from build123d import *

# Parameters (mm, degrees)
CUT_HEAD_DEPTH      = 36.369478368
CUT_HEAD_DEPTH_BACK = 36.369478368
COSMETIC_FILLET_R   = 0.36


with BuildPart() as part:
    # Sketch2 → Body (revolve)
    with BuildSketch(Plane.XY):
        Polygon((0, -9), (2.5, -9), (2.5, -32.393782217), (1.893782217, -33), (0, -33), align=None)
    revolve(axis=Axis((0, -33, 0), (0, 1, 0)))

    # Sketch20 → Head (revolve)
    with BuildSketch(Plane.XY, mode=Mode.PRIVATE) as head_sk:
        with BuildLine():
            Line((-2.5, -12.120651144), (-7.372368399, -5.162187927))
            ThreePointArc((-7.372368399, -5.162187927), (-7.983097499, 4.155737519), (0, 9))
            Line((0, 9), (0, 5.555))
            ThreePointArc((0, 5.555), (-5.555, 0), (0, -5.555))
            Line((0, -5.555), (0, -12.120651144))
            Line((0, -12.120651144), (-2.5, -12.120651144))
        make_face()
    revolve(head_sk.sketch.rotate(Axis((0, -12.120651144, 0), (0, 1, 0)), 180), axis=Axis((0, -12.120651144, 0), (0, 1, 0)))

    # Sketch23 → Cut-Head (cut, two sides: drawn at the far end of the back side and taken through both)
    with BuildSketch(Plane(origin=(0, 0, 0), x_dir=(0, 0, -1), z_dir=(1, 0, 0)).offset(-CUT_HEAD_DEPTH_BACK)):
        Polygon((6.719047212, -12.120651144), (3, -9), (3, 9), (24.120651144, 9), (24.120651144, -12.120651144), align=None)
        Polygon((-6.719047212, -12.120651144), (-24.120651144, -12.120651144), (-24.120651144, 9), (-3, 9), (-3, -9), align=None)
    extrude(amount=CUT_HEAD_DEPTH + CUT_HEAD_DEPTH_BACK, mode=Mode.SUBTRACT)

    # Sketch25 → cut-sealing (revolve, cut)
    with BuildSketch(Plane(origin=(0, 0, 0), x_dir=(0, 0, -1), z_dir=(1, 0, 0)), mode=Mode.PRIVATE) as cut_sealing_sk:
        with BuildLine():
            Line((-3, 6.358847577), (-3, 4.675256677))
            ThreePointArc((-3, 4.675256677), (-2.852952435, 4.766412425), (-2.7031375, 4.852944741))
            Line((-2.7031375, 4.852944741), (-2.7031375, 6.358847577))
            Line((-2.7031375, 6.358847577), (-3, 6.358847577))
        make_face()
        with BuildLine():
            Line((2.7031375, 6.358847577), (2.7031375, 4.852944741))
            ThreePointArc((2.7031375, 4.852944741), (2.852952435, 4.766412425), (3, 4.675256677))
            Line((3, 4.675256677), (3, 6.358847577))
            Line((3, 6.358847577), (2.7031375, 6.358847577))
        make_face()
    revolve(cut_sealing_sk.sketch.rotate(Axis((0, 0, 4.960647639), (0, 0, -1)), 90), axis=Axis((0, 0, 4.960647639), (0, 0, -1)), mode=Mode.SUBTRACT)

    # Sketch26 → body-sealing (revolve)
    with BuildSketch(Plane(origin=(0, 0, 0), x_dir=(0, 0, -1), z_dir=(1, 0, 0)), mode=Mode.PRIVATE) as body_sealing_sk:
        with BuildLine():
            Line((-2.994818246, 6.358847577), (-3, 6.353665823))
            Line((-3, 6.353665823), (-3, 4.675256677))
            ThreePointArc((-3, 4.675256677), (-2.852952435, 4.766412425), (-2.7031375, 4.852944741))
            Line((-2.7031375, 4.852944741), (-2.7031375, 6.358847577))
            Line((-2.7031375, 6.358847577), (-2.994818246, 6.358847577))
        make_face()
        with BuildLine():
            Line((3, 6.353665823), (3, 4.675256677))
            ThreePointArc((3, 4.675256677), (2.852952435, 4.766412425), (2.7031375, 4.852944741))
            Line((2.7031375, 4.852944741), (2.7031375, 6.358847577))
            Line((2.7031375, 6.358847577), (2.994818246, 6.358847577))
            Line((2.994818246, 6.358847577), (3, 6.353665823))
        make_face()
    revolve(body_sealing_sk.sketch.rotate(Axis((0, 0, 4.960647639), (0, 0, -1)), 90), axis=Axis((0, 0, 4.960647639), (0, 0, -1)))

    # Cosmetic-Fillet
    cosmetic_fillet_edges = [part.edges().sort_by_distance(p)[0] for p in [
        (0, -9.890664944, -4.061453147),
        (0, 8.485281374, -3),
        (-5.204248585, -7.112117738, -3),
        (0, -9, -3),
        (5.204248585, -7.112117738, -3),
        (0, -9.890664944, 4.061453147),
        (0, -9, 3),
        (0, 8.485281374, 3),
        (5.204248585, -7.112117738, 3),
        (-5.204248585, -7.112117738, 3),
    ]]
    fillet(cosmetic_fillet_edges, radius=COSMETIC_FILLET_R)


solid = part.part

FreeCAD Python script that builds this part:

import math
import FreeCAD as App
import Part
import Sketcher
Q = App.Units.Quantity


def edges_at(feature, points):
    """Names of the edges that pass closest to the given points."""
    edges = feature.Shape.Edges
    near = lambda p: min(range(len(edges)), key=lambda i: edges[i].distToShape(Part.Vertex(*p))[0])
    return sorted({f"Edge{near(p) + 1}" for p in points})

doc = App.newDocument("Part")
params = doc.addObject("Spreadsheet::Sheet", "Params")
for row, (alias, value) in enumerate([
    ("sketch1_height", "24 mm"),
    ("sketch1_width", "2.5 mm"),
    ("revolution_angle", "360 deg"),
    ("sketch2_radius", "9 mm"),
    ("sketch2_width", "2.5 mm"),
    ("revolution2_angle", "360 deg"),
    ("sketch3_width", "18 mm"),
    ("groove_angle", "360 deg"),
    ("revolution3_angle", "360 deg"),
    ("fillet_radius", "0.36 mm"),
], start=1):
    params.set(f"A{row}", alias)
    params.set(f"B{row}", "=" + value)
    params.setAlias(f"B{row}", alias)

body = doc.addObject("PartDesign::Body", "Body")

sketch1 = doc.addObject("Sketcher::SketchObject", "Sketch")
body.addObject(sketch1)
sketch1.AttachmentSupport = (doc.XY_Plane, [""])
sketch1.MapMode = "FlatFace"
sketch1.addGeometry([
    Part.LineSegment(App.Vector(2.5, -9, 0), App.Vector(0, -9, 0)),
    Part.LineSegment(App.Vector(0, -9, 0), App.Vector(0, -33, 0)),
    Part.LineSegment(App.Vector(0, -33, 0), App.Vector(1.9, -33, 0)),
    Part.LineSegment(App.Vector(1.9, -33, 0), App.Vector(2.5, -32.4, 0)),
    Part.LineSegment(App.Vector(2.5, -32.4, 0), App.Vector(2.5, -9, 0)),
], False)
sketch1.addConstraint([
    Sketcher.Constraint("Coincident", 0, 2, 1, 1),
    Sketcher.Constraint("Coincident", 1, 2, 2, 1),
    Sketcher.Constraint("Coincident", 2, 2, 3, 1),
    Sketcher.Constraint("Coincident", 3, 2, 4, 1),
    Sketcher.Constraint("Coincident", 4, 2, 0, 1),
    Sketcher.Constraint("Horizontal", 0),
    Sketcher.Constraint("Vertical", 1),
    Sketcher.Constraint("Horizontal", 2),
    Sketcher.Constraint("Vertical", 4),
    Sketcher.Constraint("PointOnObject", 0, 2, -2),
    Sketcher.Constraint("DistanceY", 1, 2, 1, 1, 24.0),
    Sketcher.Constraint("Angle", 3, Q("45 deg")),
    Sketcher.Constraint("DistanceX", 0, 2, 0, 1, 2.5),
    Sketcher.Constraint("DistanceY", 0, 2, -1, 1, 9.0),
    Sketcher.Constraint("Distance", 3, 0.857321),
])
sketch1.setExpression("Constraints[10]", "Params.sketch1_height")
sketch1.setExpression("Constraints[12]", "Params.sketch1_width")
revolution = doc.addObject("PartDesign::Revolution", "Revolution")
body.addObject(revolution)
revolution.Profile = sketch1
revolution.ReferenceAxis = (sketch1, ["V_Axis"])
revolution.setExpression("Angle", "Params.revolution_angle")

sketch2 = doc.addObject("Sketcher::SketchObject", "Sketch001")
body.addObject(sketch2)
sketch2.AttachmentSupport = (doc.XY_Plane, [""])
sketch2.MapMode = "FlatFace"
sketch2.addGeometry([
    Part.LineSegment(App.Vector(-7.4, -5.2, 0), App.Vector(-2.5, -12.1, 0)),
    Part.LineSegment(App.Vector(-2.5, -12.1, 0), App.Vector(0, -12.1, 0)),
    Part.LineSegment(App.Vector(0, -12.1, 0), App.Vector(0, -5.6, 0)),
    Part.ArcOfCircle(Part.Circle(App.Vector(0, 0, 0), App.Vector(0, 0, 1), 5.6), math.radians(90), math.radians(270)),
    Part.LineSegment(App.Vector(0, 5.6, 0), App.Vector(0, 9, 0)),
    Part.ArcOfCircle(Part.Circle(App.Vector(0, 0, 0), App.Vector(0, 0, 1), 9), math.radians(90), math.radians(215)),
], False)
sketch2.addConstraint([
    Sketcher.Constraint("Coincident", 0, 2, 1, 1),
    Sketcher.Constraint("Coincident", 1, 2, 2, 1),
    Sketcher.Constraint("Coincident", 2, 2, 3, 2),
    Sketcher.Constraint("Coincident", 3, 1, 4, 1),
    Sketcher.Constraint("Coincident", 4, 2, 5, 1),
    Sketcher.Constraint("Tangent", 5, 2, 0, 1),
    Sketcher.Constraint("Horizontal", 1),
    Sketcher.Constraint("Vertical", 2),
    Sketcher.Constraint("Vertical", 4),
    Sketcher.Constraint("Coincident", 3, 3, -1, 1),
    Sketcher.Constraint("Coincident", 5, 3, -1, 1),
    Sketcher.Constraint("PointOnObject", 1, 2, -2),
    Sketcher.Constraint("PointOnObject", 3, 1, -2),
    Sketcher.Constraint("Radius", 5, 9.0),
    Sketcher.Constraint("Angle", 0, Q("-55 deg")),
    Sketcher.Constraint("DistanceX", 1, 1, 1, 2, 2.5),
    Sketcher.Constraint("Radius", 3, 5.555),
])
sketch2.setExpression("Constraints[13]", "Params.sketch2_radius")
sketch2.setExpression("Constraints[15]", "Params.sketch2_width")
revolution2 = doc.addObject("PartDesign::Revolution", "Revolution001")
body.addObject(revolution2)
revolution2.Profile = sketch2
revolution2.ReferenceAxis = (sketch2, ["V_Axis"])
revolution2.setExpression("Angle", "Params.revolution2_angle")

sketch3 = doc.addObject("Sketcher::SketchObject", "Sketch002")
body.addObject(sketch3)
sketch3.AttachmentSupport = (doc.YZ_Plane, [""])
sketch3.MapMode = "FlatFace"
sketch3.addGeometry([
    Part.LineSegment(App.Vector(-9, -3, 0), App.Vector(-12.1, -6.7, 0)),
    Part.LineSegment(App.Vector(-12.1, -6.7, 0), App.Vector(-12.1, -24.1, 0)),
    Part.LineSegment(App.Vector(-12.1, -24.1, 0), App.Vector(9, -24.1, 0)),
    Part.LineSegment(App.Vector(9, -24.1, 0), App.Vector(9, -3, 0)),
    Part.LineSegment(App.Vector(9, -3, 0), App.Vector(-9, -3, 0)),
    Part.LineSegment(App.Vector(-12.1, 24.1, 0), App.Vector(-12.1, 6.7, 0)),
    Part.LineSegment(App.Vector(-12.1, 6.7, 0), App.Vector(-9, 3, 0)),
    Part.LineSegment(App.Vector(-9, 3, 0), App.Vector(9, 3, 0)),
    Part.LineSegment(App.Vector(9, 3, 0), App.Vector(9, 24.1, 0)),
    Part.LineSegment(App.Vector(9, 24.1, 0), App.Vector(-12.1, 24.1, 0)),
], False)
sketch3.addConstraint([
    Sketcher.Constraint("Coincident", 0, 2, 1, 1),
    Sketcher.Constraint("Coincident", 1, 2, 2, 1),
    Sketcher.Constraint("Coincident", 2, 2, 3, 1),
    Sketcher.Constraint("Coincident", 3, 2, 4, 1),
    Sketcher.Constraint("Coincident", 4, 2, 0, 1),
    Sketcher.Constraint("Coincident", 5, 2, 6, 1),
    Sketcher.Constraint("Coincident", 6, 2, 7, 1),
    Sketcher.Constraint("Coincident", 7, 2, 8, 1),
    Sketcher.Constraint("Coincident", 8, 2, 9, 1),
    Sketcher.Constraint("Coincident", 9, 2, 5, 1),
    Sketcher.Constraint("Vertical", 1),
    Sketcher.Constraint("Horizontal", 2),
    Sketcher.Constraint("Vertical", 3),
    Sketcher.Constraint("Horizontal", 4),
    Sketcher.Constraint("Vertical", 5),
    Sketcher.Constraint("Horizontal", 7),
    Sketcher.Constraint("Vertical", 8),
    Sketcher.Constraint("Horizontal", 9),
    Sketcher.Constraint("Symmetric", 3, 2, 6, 2, -1, 1),
    Sketcher.Constraint("Symmetric", 0, 2, 5, 2, -1),
    Sketcher.Constraint("Symmetric", 2, 2, 8, 2, -1),
    Sketcher.Constraint("Vertical", 4, 2, 6, 2),
    Sketcher.Constraint("Equal", 9, 3),
    Sketcher.Constraint("DistanceX", 4, 2, 4, 1, 18.0),
    Sketcher.Constraint("Angle", 0, Q("-130 deg")),
    Sketcher.Constraint("DistanceY", 3, 2, -1, 1, 3.0),
    Sketcher.Constraint("DistanceX", 2, 1, 2, 2, 21.120651),
])
sketch3.setExpression("Constraints[23]", "Params.sketch3_width")
pocket1 = doc.addObject("PartDesign::Pocket", "Pocket")
body.addObject(pocket1)
pocket1.Profile = sketch3
pocket1.Type = "ThroughAll"
pocket1.Midplane = True

sketch4 = doc.addObject("Sketcher::SketchObject", "Sketch003")
body.addObject(sketch4)
sketch4.AttachmentSupport = (doc.YZ_Plane, [""])
sketch4.MapMode = "FlatFace"
sketch4.addGeometry([
    Part.LineSegment(App.Vector(6.36, 3, 0), App.Vector(4.68, 3, 0)),
    Part.ArcOfCircle(Part.Circle(App.Vector(0, 0, 0), App.Vector(0, 0, 1), 5.55), math.radians(29.12), math.radians(32.69)),
    Part.LineSegment(App.Vector(4.85, 2.7, 0), App.Vector(6.36, 2.7, 0)),
    Part.LineSegment(App.Vector(6.36, 2.7, 0), App.Vector(6.36, 3, 0)),
    Part.LineSegment(App.Vector(6.36, -2.7, 0), App.Vector(4.85, -2.7, 0)),
    Part.ArcOfCircle(Part.Circle(App.Vector(0, 0, 0), App.Vector(0, 0, 1), 5.55), math.radians(-32.69), math.radians(-29.12)),
    Part.LineSegment(App.Vector(4.68, -3, 0), App.Vector(6.36, -3, 0)),
    Part.LineSegment(App.Vector(6.36, -3, 0), App.Vector(6.36, -2.7, 0)),
], False)
sketch4.addConstraint([
    Sketcher.Constraint("Coincident", 0, 2, 1, 2),
    Sketcher.Constraint("Coincident", 1, 1, 2, 1),
    Sketcher.Constraint("Coincident", 2, 2, 3, 1),
    Sketcher.Constraint("Coincident", 3, 2, 0, 1),
    Sketcher.Constraint("Coincident", 4, 2, 5, 2),
    Sketcher.Constraint("Coincident", 5, 1, 6, 1),
    Sketcher.Constraint("Coincident", 6, 2, 7, 1),
    Sketcher.Constraint("Coincident", 7, 2, 4, 1),
    Sketcher.Constraint("Horizontal", 0),
    Sketcher.Constraint("Horizontal", 2),
    Sketcher.Constraint("Vertical", 3),
    Sketcher.Constraint("Horizontal", 4),
    Sketcher.Constraint("Horizontal", 6),
    Sketcher.Constraint("Vertical", 7),
    Sketcher.Constraint("Coincident", 1, 3, -1, 1),
    Sketcher.Constraint("Coincident", 5, 3, -1, 1),
    Sketcher.Constraint("Equal", 1, 5),
    Sketcher.Constraint("Symmetric", 3, 2, 6, 2, -1),
    Sketcher.Constraint("Vertical", 1, 1, 4, 2),
    Sketcher.Constraint("DistanceY", -1, 1, 0, 2, 3.0),
    Sketcher.Constraint("Radius", 1, 5.555),
    Sketcher.Constraint("DistanceX", 0, 2, 0, 1, 1.683591),
    Sketcher.Constraint("DistanceX", 2, 1, 2, 2, 1.505903),
])
groove = doc.addObject("PartDesign::Groove", "Groove")
body.addObject(groove)
groove.Profile = sketch4
groove.ReferenceAxis = (sketch4, ["V_Axis"])
groove.setExpression("Angle", "Params.groove_angle")

sketch5 = doc.addObject("Sketcher::SketchObject", "Sketch004")
body.addObject(sketch5)
sketch5.AttachmentSupport = (doc.YZ_Plane, [""])
sketch5.MapMode = "FlatFace"
sketch5.addGeometry([
    Part.LineSegment(App.Vector(6.359, 2.995, 0), App.Vector(6.354, 3, 0)),
    Part.LineSegment(App.Vector(6.354, 3, 0), App.Vector(4.675, 3, 0)),
    Part.ArcOfCircle(Part.Circle(App.Vector(0, 0, 0), App.Vector(0, 0, 1), 5.555), math.radians(29.12), math.radians(32.69)),
    Part.LineSegment(App.Vector(4.853, 2.703, 0), App.Vector(6.359, 2.703, 0)),
    Part.LineSegment(App.Vector(6.359, 2.703, 0), App.Vector(6.359, 2.995, 0)),
    Part.LineSegment(App.Vector(4.675, -3, 0), App.Vector(6.354, -3, 0)),
    Part.LineSegment(App.Vector(6.354, -3, 0), App.Vector(6.359, -2.995, 0)),
    Part.LineSegment(App.Vector(6.359, -2.995, 0), App.Vector(6.359, -2.703, 0)),
    Part.LineSegment(App.Vector(6.359, -2.703, 0), App.Vector(4.853, -2.703, 0)),
    Part.ArcOfCircle(Part.Circle(App.Vector(0, 0, 0), App.Vector(0, 0, 1), 5.555), math.radians(-32.69), math.radians(-29.12)),
], False)
sketch5.addConstraint([
    Sketcher.Constraint("Coincident", 0, 2, 1, 1),
    Sketcher.Constraint("Coincident", 1, 2, 2, 2),
    Sketcher.Constraint("Coincident", 2, 1, 3, 1),
    Sketcher.Constraint("Coincident", 3, 2, 4, 1),
    Sketcher.Constraint("Coincident", 4, 2, 0, 1),
    Sketcher.Constraint("Coincident", 5, 2, 6, 1),
    Sketcher.Constraint("Coincident", 6, 2, 7, 1),
    Sketcher.Constraint("Coincident", 7, 2, 8, 1),
    Sketcher.Constraint("Coincident", 8, 2, 9, 2),
    Sketcher.Constraint("Coincident", 9, 1, 5, 1),
    Sketcher.Constraint("Horizontal", 1),
    Sketcher.Constraint("Horizontal", 3),
    Sketcher.Constraint("Vertical", 4),
    Sketcher.Constraint("Horizontal", 5),
    Sketcher.Constraint("Vertical", 7),
    Sketcher.Constraint("Horizontal", 8),
    Sketcher.Constraint("Coincident", 2, 3, -1, 1),
    Sketcher.Constraint("Coincident", 9, 3, -1, 1),
    Sketcher.Constraint("Equal", 2, 9),
    Sketcher.Constraint("Symmetric", 0, 2, 5, 2, -1),
    Sketcher.Constraint("Symmetric", 4, 2, 6, 2, -1),
    Sketcher.Constraint("Perpendicular", 0, 6),
    Sketcher.Constraint("Vertical", 2, 1, 8, 2),
    Sketcher.Constraint("DistanceY", -1, 1, 0, 2, 3.0),
    Sketcher.Constraint("Radius", 2, 5.555),
    Sketcher.Constraint("DistanceX", 1, 2, 1, 1, 1.678409),
    Sketcher.Constraint("DistanceY", 4, 1, 4, 2, 0.291681),
    Sketcher.Constraint("Distance", 0, 0.007328),
])
revolution3 = doc.addObject("PartDesign::Revolution", "Revolution002")
body.addObject(revolution3)
revolution3.Profile = sketch5
revolution3.ReferenceAxis = (sketch5, ["V_Axis"])
revolution3.setExpression("Angle", "Params.revolution3_angle")
doc.recompute()

fillet = doc.addObject("PartDesign::Fillet", "Fillet")
body.addObject(fillet)
fillet.Base = (revolution3, edges_at(revolution3, [
    (0, -9.891, -4.061),
    (0, 8.485, -3),
    (-5.204, -7.112, -3),
    (0, -9, -3),
    (5.204, -7.112, -3),
    (0, -9.891, 4.061),
    (0, -9, 3),
    (0, 8.485, 3),
    (5.204, -7.112, 3),
    (-5.204, -7.112, 3),
]))
fillet.setExpression("Radius", "Params.fillet_radius")

doc.recompute()
